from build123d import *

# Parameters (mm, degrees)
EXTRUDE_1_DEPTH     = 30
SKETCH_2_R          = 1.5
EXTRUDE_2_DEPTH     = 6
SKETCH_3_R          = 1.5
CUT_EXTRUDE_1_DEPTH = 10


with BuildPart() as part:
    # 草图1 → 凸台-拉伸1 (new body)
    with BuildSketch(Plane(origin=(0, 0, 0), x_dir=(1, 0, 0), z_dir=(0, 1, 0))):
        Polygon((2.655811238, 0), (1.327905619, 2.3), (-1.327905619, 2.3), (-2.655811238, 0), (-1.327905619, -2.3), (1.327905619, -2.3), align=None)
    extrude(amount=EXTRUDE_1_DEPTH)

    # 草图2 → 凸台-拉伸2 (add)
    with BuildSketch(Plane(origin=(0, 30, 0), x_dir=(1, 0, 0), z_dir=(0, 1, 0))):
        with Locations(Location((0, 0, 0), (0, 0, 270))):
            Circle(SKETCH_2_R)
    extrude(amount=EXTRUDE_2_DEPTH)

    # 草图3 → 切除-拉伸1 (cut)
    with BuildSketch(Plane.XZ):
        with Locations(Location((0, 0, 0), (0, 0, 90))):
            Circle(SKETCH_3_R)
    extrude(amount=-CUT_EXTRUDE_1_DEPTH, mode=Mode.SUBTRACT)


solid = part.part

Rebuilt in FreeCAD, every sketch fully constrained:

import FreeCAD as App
import Part
import Sketcher
Q = App.Units.Quantity

doc = App.newDocument("Part")
params = doc.addObject("Spreadsheet::Sheet", "Params")
for row, (alias, value) in enumerate([
    ("pad1_length", "30 mm"),
    ("sketch2_diameter", "3 mm"),
    ("pad2_length", "6 mm"),
    ("sketch3_diameter", "3 mm"),
    ("pocket1_length", "10 mm"),
], start=1):
    params.set(f"A{row}", alias)
    params.set(f"B{row}", "=" + value)
    params.setAlias(f"B{row}", alias)

body = doc.addObject("PartDesign::Body", "Body")

sketch1 = body.newObject("Sketcher::SketchObject", "Sketch")
sketch1.AttachmentSupport = (doc.getObject("XZ_Plane"), [""])
sketch1.MapMode = "FlatFace"
sketch1.addGeometry([
    Part.LineSegment(App.Vector(2.655811, 0, 0), App.Vector(1.327906, -2.3, 0)),
    Part.LineSegment(App.Vector(1.327906, -2.3, 0), App.Vector(-1.327906, -2.3, 0)),
    Part.LineSegment(App.Vector(-1.327906, -2.3, 0), App.Vector(-2.655811, 0, 0)),
    Part.LineSegment(App.Vector(-2.655811, 0, 0), App.Vector(-1.327906, 2.3, 0)),
    Part.LineSegment(App.Vector(-1.327906, 2.3, 0), App.Vector(1.327906, 2.3, 0)),
    Part.LineSegment(App.Vector(1.327906, 2.3, 0), App.Vector(2.655811, 0, 0)),
], False)
sketch1.addConstraint([
    Sketcher.Constraint("Coincident", 0, 2, 1, 1),
    Sketcher.Constraint("Coincident", 1, 2, 2, 1),
    Sketcher.Constraint("Coincident", 2, 2, 3, 1),
    Sketcher.Constraint("Coincident", 3, 2, 4, 1),
    Sketcher.Constraint("Coincident", 4, 2, 5, 1),
    Sketcher.Constraint("Coincident", 5, 2, 0, 1),
    Sketcher.Constraint("Horizontal", 1),
    Sketcher.Constraint("Horizontal", 4),
    Sketcher.Constraint("Symmetric", 0, 2, 3, 2, -1, 1),
    Sketcher.Constraint("Symmetric", 2, 2, 5, 2, -1, 1),
    Sketcher.Constraint("PointOnObject", 2, 2, -1),
    Sketcher.Constraint("Parallel", 2, 5),
    Sketcher.Constraint("Vertical", 1, 2, 3, 2),
    Sketcher.Constraint("Angle", 0, Q("-120 deg")),
    Sketcher.Constraint("DistanceY", 0, 2, -1, 1, Q("2.3 mm")),
    Sketcher.Constraint("DistanceX", 1, 2, 1, 1, Q("2.655811 mm")),
])
pad1 = body.newObject("PartDesign::Pad", "Pad")
pad1.Profile = sketch1
pad1.setExpression("Length", "Params.pad1_length")
pad1.Reversed = True

sketch2 = body.newObject("Sketcher::SketchObject", "Sketch001")
sketch2.AttachmentSupport = (doc.getObject("XZ_Plane"), [""])
sketch2.MapMode = "FlatFace"
sketch2.AttachmentOffset = App.Placement(App.Vector(0, 0, -30), App.Rotation())
sketch2.addGeometry(Part.Circle(App.Vector(0, 0, 0), App.Vector(0, 0, 1), 1.5), False)
sketch2.addConstraint([
    Sketcher.Constraint("Coincident", 0, 3, -1, 1),
    Sketcher.Constraint("Diameter", 0, Q("3 mm")),
])
sketch2.setExpression("Constraints[1]", "Params.sketch2_diameter")
pad2 = body.newObject("PartDesign::Pad", "Pad001")
pad2.Profile = sketch2
pad2.setExpression("Length", "Params.pad2_length")
pad2.Reversed = True

sketch3 = body.newObject("Sketcher::SketchObject", "Sketch002")
sketch3.AttachmentSupport = (doc.getObject("XZ_Plane"), [""])
sketch3.MapMode = "FlatFace"
sketch3.addGeometry(Part.Circle(App.Vector(0, 0, 0), App.Vector(0, 0, 1), 1.5), False)
sketch3.addConstraint([
    Sketcher.Constraint("Coincident", 0, 3, -1, 1),
    Sketcher.Constraint("Diameter", 0, Q("3 mm")),
])
sketch3.setExpression("Constraints[1]", "Params.sketch3_diameter")
pocket1 = body.newObject("PartDesign::Pocket", "Pocket")
pocket1.Profile = sketch3
pocket1.setExpression("Length", "Params.pocket1_length")

doc.recompute()
